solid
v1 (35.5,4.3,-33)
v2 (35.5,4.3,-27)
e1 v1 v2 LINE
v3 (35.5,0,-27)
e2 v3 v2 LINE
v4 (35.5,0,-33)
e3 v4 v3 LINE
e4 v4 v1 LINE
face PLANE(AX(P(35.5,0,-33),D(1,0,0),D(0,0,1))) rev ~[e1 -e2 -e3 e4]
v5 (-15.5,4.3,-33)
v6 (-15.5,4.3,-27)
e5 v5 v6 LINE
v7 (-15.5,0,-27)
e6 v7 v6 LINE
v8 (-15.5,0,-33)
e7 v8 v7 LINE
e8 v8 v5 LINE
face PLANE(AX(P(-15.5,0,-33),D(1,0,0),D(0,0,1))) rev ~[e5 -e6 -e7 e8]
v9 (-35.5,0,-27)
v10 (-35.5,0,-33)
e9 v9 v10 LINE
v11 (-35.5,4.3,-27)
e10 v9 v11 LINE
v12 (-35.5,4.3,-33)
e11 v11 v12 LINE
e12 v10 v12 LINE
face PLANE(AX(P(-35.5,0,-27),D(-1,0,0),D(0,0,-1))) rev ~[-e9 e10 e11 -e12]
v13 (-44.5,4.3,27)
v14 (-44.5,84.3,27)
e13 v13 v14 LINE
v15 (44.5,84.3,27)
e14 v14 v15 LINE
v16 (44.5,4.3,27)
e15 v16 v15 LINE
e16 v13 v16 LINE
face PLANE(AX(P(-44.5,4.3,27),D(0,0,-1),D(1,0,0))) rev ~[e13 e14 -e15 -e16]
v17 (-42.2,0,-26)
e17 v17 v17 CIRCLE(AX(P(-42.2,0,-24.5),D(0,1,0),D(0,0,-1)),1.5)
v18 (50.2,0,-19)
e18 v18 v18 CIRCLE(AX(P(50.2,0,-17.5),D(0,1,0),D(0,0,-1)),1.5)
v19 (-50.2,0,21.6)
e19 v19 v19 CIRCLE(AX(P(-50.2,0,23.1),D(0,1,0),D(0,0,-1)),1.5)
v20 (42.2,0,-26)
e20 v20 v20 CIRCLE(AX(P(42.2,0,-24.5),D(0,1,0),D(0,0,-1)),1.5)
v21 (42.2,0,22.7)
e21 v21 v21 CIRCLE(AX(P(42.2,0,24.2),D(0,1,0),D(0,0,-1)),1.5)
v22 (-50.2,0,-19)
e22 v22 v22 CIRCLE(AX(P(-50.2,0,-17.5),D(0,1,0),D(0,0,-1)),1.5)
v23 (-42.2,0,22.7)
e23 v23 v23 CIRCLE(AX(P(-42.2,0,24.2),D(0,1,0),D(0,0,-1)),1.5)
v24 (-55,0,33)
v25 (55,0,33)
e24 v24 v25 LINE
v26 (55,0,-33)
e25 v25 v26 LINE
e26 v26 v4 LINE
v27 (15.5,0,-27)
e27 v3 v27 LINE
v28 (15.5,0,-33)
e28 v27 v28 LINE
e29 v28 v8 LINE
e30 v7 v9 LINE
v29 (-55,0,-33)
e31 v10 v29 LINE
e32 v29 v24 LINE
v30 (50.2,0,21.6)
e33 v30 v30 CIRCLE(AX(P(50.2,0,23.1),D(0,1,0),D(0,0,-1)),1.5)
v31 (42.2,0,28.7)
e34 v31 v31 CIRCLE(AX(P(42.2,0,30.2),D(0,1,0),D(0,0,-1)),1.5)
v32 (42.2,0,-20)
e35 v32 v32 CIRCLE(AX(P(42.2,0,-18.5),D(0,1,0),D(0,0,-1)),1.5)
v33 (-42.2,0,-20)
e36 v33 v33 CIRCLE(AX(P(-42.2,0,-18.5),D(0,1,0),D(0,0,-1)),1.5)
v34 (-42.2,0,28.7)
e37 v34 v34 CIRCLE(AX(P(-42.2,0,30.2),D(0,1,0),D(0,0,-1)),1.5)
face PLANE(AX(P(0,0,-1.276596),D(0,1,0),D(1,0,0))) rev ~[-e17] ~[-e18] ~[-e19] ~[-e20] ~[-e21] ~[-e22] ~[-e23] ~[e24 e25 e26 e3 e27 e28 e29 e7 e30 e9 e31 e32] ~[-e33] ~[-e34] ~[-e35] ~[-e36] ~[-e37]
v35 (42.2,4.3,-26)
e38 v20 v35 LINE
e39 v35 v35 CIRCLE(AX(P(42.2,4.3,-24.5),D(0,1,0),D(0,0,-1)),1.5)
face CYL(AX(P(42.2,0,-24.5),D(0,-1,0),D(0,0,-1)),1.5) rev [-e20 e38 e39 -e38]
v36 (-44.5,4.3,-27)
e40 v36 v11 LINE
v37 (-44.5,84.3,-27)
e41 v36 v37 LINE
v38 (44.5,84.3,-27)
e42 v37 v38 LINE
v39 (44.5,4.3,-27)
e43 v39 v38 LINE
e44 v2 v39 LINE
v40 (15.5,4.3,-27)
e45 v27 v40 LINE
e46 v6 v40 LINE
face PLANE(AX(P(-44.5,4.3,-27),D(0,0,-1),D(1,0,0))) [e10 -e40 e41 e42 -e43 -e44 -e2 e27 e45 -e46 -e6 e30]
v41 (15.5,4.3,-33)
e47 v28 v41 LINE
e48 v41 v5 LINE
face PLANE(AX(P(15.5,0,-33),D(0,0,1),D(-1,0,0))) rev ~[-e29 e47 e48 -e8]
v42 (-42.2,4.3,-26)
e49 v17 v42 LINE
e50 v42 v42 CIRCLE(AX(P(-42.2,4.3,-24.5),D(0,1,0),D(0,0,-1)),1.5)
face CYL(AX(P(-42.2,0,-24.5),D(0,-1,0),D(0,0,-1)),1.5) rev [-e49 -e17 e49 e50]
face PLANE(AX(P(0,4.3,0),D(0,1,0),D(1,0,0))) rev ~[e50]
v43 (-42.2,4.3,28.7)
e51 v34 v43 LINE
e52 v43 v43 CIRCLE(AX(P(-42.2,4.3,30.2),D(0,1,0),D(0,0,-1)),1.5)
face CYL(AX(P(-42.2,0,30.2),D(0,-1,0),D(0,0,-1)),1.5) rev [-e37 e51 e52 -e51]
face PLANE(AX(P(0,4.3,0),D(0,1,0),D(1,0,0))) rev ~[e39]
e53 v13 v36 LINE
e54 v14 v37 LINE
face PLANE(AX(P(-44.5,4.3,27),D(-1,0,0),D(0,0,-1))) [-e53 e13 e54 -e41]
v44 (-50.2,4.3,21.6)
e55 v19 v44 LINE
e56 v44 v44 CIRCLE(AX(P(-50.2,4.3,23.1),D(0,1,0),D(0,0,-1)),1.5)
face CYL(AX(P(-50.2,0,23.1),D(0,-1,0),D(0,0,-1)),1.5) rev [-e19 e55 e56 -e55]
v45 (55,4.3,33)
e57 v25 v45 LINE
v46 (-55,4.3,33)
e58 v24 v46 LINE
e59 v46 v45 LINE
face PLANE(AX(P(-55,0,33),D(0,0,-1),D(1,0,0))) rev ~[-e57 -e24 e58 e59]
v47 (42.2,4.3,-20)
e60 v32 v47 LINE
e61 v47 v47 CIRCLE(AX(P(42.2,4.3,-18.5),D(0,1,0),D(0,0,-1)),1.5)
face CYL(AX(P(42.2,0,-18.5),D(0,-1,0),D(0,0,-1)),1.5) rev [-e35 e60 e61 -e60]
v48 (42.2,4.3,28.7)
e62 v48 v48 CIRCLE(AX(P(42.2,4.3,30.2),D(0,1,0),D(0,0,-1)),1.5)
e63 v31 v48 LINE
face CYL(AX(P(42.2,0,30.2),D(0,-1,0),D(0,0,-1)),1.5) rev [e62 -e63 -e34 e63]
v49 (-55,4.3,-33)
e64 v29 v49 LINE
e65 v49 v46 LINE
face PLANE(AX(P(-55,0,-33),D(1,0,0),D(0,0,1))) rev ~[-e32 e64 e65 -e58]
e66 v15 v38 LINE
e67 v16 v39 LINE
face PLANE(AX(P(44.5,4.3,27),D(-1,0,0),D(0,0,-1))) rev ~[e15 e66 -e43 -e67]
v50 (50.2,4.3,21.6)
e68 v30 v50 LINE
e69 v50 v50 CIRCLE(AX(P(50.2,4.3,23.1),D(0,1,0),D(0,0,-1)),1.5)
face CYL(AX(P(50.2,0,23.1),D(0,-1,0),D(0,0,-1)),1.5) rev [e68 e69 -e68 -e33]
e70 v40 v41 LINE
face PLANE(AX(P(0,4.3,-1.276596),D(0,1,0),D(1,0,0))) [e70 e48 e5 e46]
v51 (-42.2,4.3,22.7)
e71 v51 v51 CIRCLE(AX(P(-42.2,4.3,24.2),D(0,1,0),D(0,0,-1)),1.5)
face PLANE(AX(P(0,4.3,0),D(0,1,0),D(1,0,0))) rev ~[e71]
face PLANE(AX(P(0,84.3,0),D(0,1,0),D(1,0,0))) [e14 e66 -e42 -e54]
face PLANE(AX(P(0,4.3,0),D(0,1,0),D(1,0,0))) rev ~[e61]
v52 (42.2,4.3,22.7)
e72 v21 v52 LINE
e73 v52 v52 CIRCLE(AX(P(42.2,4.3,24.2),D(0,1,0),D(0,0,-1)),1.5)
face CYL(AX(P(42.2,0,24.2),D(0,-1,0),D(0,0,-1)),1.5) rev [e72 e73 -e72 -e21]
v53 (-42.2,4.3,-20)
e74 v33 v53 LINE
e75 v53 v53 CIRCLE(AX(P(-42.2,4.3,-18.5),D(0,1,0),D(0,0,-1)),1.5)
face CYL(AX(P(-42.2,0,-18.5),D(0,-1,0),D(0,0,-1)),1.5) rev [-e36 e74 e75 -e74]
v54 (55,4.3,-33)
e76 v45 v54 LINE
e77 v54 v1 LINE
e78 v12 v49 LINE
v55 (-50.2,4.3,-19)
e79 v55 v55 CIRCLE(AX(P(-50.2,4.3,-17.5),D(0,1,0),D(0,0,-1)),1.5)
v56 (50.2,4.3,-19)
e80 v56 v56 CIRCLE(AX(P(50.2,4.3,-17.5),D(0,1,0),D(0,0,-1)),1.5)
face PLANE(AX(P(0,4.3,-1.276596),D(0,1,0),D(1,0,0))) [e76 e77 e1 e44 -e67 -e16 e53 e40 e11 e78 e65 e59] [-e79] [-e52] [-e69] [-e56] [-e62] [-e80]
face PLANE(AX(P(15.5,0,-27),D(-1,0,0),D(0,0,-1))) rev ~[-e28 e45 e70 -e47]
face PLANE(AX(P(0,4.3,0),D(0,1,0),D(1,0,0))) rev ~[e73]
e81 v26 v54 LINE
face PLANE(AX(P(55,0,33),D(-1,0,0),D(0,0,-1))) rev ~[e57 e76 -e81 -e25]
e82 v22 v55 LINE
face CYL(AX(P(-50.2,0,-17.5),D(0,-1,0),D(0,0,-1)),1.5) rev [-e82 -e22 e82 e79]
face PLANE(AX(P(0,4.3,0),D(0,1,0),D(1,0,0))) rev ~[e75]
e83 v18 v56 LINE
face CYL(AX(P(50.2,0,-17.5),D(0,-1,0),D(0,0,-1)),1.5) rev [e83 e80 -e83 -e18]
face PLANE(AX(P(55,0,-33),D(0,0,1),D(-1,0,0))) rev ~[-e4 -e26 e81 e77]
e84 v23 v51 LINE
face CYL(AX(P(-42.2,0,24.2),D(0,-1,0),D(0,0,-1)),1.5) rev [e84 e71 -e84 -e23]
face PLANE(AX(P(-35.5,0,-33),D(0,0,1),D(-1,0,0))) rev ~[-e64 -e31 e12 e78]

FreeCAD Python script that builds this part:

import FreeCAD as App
import Part
import Sketcher

V = App.Vector


def add_polygon(sketch, points):
    """Adds a closed chain of lines whose ends are joined by coincident constraints."""
    first, n = sketch.GeometryCount, len(points)
    for a, b in zip(points, points[1:] + points[:1]):
        sketch.addGeometry(Part.LineSegment(App.Vector(*a, 0), App.Vector(*b, 0)), False)
    for i in range(n):
        sketch.addConstraint(Sketcher.Constraint("Coincident", first + i, 2, first + (i + 1) % n, 1))

doc = App.newDocument("Part")
body = doc.addObject("PartDesign::Body", "Body")

sketch1 = doc.addObject("Sketcher::SketchObject", "Sketch")
body.addObject(sketch1)
sketch1.AttachmentSupport = (doc.XZ_Plane, [""])
sketch1.MapMode = "FlatFace"
add_polygon(sketch1, [(-35.5, -27), (-35.5, -33), (-55, -33), (-55, 33), (55, 33), (55, -33), (35.5, -33), (35.5, -27), (15.5, -27), (15.5, -33), (-15.5, -33), (-15.5, -27)])
sketch1.addGeometry(Part.Circle(V(-42.2, 30.2, 0), V(0, 0, 1), 1.5), False)
sketch1.addGeometry(Part.Circle(V(-50.2, 23.1, 0), V(0, 0, 1), 1.5), False)
sketch1.addGeometry(Part.Circle(V(-42.2, 24.2, 0), V(0, 0, 1), 1.5), False)
sketch1.addGeometry(Part.Circle(V(42.2, 30.2, 0), V(0, 0, 1), 1.5), False)
sketch1.addGeometry(Part.Circle(V(42.2, 24.2, 0), V(0, 0, 1), 1.5), False)
sketch1.addGeometry(Part.Circle(V(50.2, 23.1, 0), V(0, 0, 1), 1.5), False)
sketch1.addGeometry(Part.Circle(V(-50.2, -17.5, 0), V(0, 0, 1), 1.5), False)
sketch1.addGeometry(Part.Circle(V(-42.2, -18.5, 0), V(0, 0, 1), 1.5), False)
sketch1.addGeometry(Part.Circle(V(-42.2, -24.5, 0), V(0, 0, 1), 1.5), False)
sketch1.addGeometry(Part.Circle(V(42.2, -18.5, 0), V(0, 0, 1), 1.5), False)
sketch1.addGeometry(Part.Circle(V(50.2, -17.5, 0), V(0, 0, 1), 1.5), False)
sketch1.addGeometry(Part.Circle(V(42.2, -24.5, 0), V(0, 0, 1), 1.5), False)
sketch1.addConstraint([
    Sketcher.Constraint("Vertical", 0),
    Sketcher.Constraint("Horizontal", 1),
    Sketcher.Constraint("Vertical", 2),
    Sketcher.Constraint("Horizontal", 3),
    Sketcher.Constraint("Vertical", 4),
    Sketcher.Constraint("Horizontal", 5),
    Sketcher.Constraint("Vertical", 6),
    Sketcher.Constraint("Horizontal", 7),
    Sketcher.Constraint("Vertical", 8),
    Sketcher.Constraint("Horizontal", 9),
    Sketcher.Constraint("Vertical", 10),
    Sketcher.Constraint("Horizontal", 11),
    Sketcher.Constraint("Equal", 12, 13),
    Sketcher.Constraint("Equal", 13, 14),
    Sketcher.Constraint("Equal", 14, 15),
    Sketcher.Constraint("Equal", 15, 16),
    Sketcher.Constraint("Equal", 16, 17),
    Sketcher.Constraint("Equal", 17, 18),
    Sketcher.Constraint("Equal", 18, 19),
    Sketcher.Constraint("Equal", 19, 20),
    Sketcher.Constraint("Equal", 20, 21),
    Sketcher.Constraint("Equal", 21, 22),
    Sketcher.Constraint("Equal", 22, 23),
    Sketcher.Constraint("Symmetric", 1, 2, 3, 2, -1, 1),
    Sketcher.Constraint("Symmetric", 12, 3, 15, 3, -2),
    Sketcher.Constraint("Symmetric", 14, 3, 16, 3, -2),
    Sketcher.Constraint("Symmetric", 13, 3, 17, 3, -2),
    Sketcher.Constraint("Symmetric", 19, 3, 21, 3, -2),
    Sketcher.Constraint("Symmetric", 18, 3, 22, 3, -2),
    Sketcher.Constraint("Symmetric", 20, 3, 23, 3, -2),
    Sketcher.Constraint("Symmetric", 0, 2, 5, 2, -2),
    Sketcher.Constraint("Symmetric", 7, 2, 10, 2, -2),
    Sketcher.Constraint("Horizontal", 5, 2, 8, 2),
    Sketcher.Constraint("Vertical", 12, 3, 14, 3),
    Sketcher.Constraint("Vertical", 13, 3, 18, 3),
    Sketcher.Constraint("Vertical", 14, 3, 19, 3),
    Sketcher.Constraint("Vertical", 19, 3, 20, 3),
    Sketcher.Constraint("Diameter", 12, 3.0),
    Sketcher.Constraint("DistanceX", 3, 1, 3, 2, 110.0),
    Sketcher.Constraint("DistanceX", 7, 2, 7, 1, 20.0),
    Sketcher.Constraint("DistanceX", 9, 2, 9, 1, 31.0),
    Sketcher.Constraint("DistanceY", 0, 2, 0, 1, 6.0),
    Sketcher.Constraint("DistanceY", 2, 1, 2, 2, 66.0),
    Sketcher.Constraint("DistanceX", 13, 3, 12, 3, 8.0),
    Sketcher.Constraint("DistanceY", 14, 3, 12, 3, 6.0),
    Sketcher.Constraint("DistanceY", 19, 3, 18, 3, 1.0),
    Sketcher.Constraint("DistanceY", 20, 3, 19, 3, 6.0),
    Sketcher.Constraint("DistanceX", 12, 3, -1, 1, 42.2),
    Sketcher.Constraint("DistanceY", -1, 1, 12, 3, 30.2),
    Sketcher.Constraint("DistanceY", -1, 1, 13, 3, 23.1),
    Sketcher.Constraint("DistanceY", 18, 3, -1, 1, 17.5),
])
pad1 = doc.addObject("PartDesign::Pad", "Pad")
body.addObject(pad1)
pad1.Profile = sketch1
pad1.Length = 4.3
pad1.Reversed = True

sketch2 = doc.addObject("Sketcher::SketchObject", "Sketch001")
body.addObject(sketch2)
sketch2.AttachmentSupport = (doc.XZ_Plane, [""])
sketch2.MapMode = "FlatFace"
sketch2.AttachmentOffset = App.Placement(V(0, 0, -4.3), App.Rotation())
add_polygon(sketch2, [(-44.5, -27), (-44.5, 27), (44.5, 27), (44.5, -27)])
sketch2.addConstraint([
    Sketcher.Constraint("Vertical", 0),
    Sketcher.Constraint("Horizontal", 1),
    Sketcher.Constraint("Vertical", 2),
    Sketcher.Constraint("Horizontal", 3),
    Sketcher.Constraint("Symmetric", 0, 2, 2, 2, -1, 1),
    Sketcher.Constraint("DistanceX", 1, 1, 1, 2, 89.0),
    Sketcher.Constraint("DistanceY", 0, 1, 0, 2, 54.0),
])
pad2 = doc.addObject("PartDesign::Pad", "Pad001")
body.addObject(pad2)
pad2.Profile = sketch2
pad2.Length = 80
pad2.Reversed = True

doc.recompute()
